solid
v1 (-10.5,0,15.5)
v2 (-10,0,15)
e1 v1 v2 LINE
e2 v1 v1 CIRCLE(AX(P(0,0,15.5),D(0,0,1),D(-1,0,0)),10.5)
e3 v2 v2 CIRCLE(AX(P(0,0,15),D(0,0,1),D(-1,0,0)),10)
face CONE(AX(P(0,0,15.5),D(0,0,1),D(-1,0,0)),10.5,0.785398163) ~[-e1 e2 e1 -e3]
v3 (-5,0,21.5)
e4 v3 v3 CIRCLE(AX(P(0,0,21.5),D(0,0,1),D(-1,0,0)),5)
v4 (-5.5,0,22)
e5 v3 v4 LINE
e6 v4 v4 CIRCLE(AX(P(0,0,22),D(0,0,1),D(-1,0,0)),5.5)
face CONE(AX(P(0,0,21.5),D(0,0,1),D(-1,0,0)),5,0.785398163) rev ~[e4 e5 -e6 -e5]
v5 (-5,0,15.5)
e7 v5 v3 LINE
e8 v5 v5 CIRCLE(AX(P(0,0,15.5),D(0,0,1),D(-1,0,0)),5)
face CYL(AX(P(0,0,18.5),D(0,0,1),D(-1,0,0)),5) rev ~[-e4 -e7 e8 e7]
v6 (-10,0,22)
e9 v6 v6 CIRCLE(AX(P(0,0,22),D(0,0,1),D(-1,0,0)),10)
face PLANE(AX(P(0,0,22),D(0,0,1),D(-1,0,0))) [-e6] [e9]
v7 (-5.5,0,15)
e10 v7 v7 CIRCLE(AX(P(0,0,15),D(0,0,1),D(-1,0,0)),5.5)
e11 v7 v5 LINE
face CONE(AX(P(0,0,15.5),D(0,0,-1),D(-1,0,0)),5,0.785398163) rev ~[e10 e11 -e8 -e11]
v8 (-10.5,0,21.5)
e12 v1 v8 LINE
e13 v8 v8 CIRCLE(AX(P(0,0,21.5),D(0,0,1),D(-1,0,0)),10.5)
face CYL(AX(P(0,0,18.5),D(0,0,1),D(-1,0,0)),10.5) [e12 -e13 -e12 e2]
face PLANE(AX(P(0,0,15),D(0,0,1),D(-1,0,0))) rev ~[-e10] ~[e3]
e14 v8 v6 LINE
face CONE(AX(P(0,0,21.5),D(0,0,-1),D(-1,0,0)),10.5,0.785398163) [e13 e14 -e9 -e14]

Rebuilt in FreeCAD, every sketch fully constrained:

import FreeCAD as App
import Part
import Sketcher
from FreeCAD import Vector


def edges_at(feature, points):
    """Names of the edges that pass closest to the given points."""
    edges = feature.Shape.Edges
    near = lambda p: min(range(len(edges)), key=lambda i: edges[i].distToShape(Part.Vertex(*p))[0])
    return sorted({f"Edge{near(p) + 1}" for p in points})

doc = App.newDocument("Part")
body = doc.addObject("PartDesign::Body", "Body")

# Sketch on XZ plane
sketch1 = body.newObject("Sketcher::SketchObject", "Sketch")
sketch1.AttachmentSupport = (doc.getObject("XZ_Plane"), [""])
sketch1.MapMode = "FlatFace"
sketch1.addGeometry([
    Part.LineSegment(Vector(-10.5, 22, 0), Vector(-10.5, 15, 0)),
    Part.LineSegment(Vector(-10.5, 15, 0), Vector(-5, 15, 0)),
    Part.LineSegment(Vector(-5, 15, 0), Vector(-5, 22, 0)),
    Part.LineSegment(Vector(-5, 22, 0), Vector(-10.5, 22, 0)),
], False)
sketch1.addConstraint([
    Sketcher.Constraint("Coincident", 0, 2, 1, 1),
    Sketcher.Constraint("Coincident", 1, 2, 2, 1),
    Sketcher.Constraint("Coincident", 2, 2, 3, 1),
    Sketcher.Constraint("Coincident", 3, 2, 0, 1),
    Sketcher.Constraint("Vertical", 0),
    Sketcher.Constraint("Horizontal", 1),
    Sketcher.Constraint("Vertical", 2),
    Sketcher.Constraint("Horizontal", 3),
    Sketcher.Constraint("DistanceY", 0, 2, 0, 1, 7.0),
    Sketcher.Constraint("DistanceX", 1, 1, 1, 2, 5.5),
    Sketcher.Constraint("DistanceY", -1, 1, 0, 2, 15.0),
    Sketcher.Constraint("DistanceX", 1, 2, -1, 1, 5.0),
])
revolution = body.newObject("PartDesign::Revolution", "Revolution")
revolution.Profile = sketch1
revolution.ReferenceAxis = (sketch1, ["V_Axis"])
revolution.Angle = 360
doc.recompute()

chamfer = body.newObject("PartDesign::Chamfer", "Chamfer")
chamfer.Base = (revolution, edges_at(revolution, [
    (10.5, 0, 22),
    (5, 0, 22),
    (10.5, 0, 15),
    (5, 0, 15),
]))
chamfer.Size = 0.5

doc.recompute()
